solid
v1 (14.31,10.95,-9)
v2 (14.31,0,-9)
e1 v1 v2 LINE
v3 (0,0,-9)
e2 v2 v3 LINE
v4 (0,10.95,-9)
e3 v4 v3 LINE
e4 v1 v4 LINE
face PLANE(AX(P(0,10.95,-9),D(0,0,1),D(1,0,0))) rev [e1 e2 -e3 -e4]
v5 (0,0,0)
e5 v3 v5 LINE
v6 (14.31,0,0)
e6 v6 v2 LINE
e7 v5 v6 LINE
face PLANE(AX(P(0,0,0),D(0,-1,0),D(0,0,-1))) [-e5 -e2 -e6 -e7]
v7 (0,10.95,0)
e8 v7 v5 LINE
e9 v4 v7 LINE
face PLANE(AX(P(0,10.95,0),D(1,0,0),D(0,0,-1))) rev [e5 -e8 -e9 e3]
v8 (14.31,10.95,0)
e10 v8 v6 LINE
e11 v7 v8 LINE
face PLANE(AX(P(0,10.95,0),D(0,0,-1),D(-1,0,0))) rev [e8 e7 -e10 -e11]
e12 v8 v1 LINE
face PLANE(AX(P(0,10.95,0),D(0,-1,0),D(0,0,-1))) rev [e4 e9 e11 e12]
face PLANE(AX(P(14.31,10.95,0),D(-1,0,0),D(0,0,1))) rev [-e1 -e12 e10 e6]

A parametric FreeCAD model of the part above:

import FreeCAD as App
import Part
import Sketcher
from FreeCAD import Vector
Q = App.Units.Quantity

doc = App.newDocument("Part")
body = doc.addObject("PartDesign::Body", "Body")

# Sketch on XZ plane
sketch1 = doc.addObject("Sketcher::SketchObject", "Sketch")
body.addObject(sketch1)
sketch1.AttachmentSupport = (doc.XZ_Plane, [""])
sketch1.MapMode = "FlatFace"
sketch1.addGeometry([
    Part.LineSegment(Vector(0, -9, 0), Vector(0, 0, 0)),
    Part.LineSegment(Vector(0, 0, 0), Vector(14, 0, 0)),
    Part.LineSegment(Vector(14, 0, 0), Vector(14, -9, 0)),
    Part.LineSegment(Vector(14, -9, 0), Vector(0, -9, 0)),
], False)
sketch1.addConstraint([
    Sketcher.Constraint("Coincident", 0, 2, 1, 1),
    Sketcher.Constraint("Coincident", 1, 2, 2, 1),
    Sketcher.Constraint("Coincident", 2, 2, 3, 1),
    Sketcher.Constraint("Coincident", 3, 2, 0, 1),
    Sketcher.Constraint("Vertical", 0),
    Sketcher.Constraint("Horizontal", 1),
    Sketcher.Constraint("Vertical", 2),
    Sketcher.Constraint("Horizontal", 3),
    Sketcher.Constraint("Coincident", 0, 2, -1, 1),
    Sketcher.Constraint("DistanceY", 0, 1, 0, 2, Q("9 mm")),
    Sketcher.Constraint("DistanceX", 1, 1, 1, 2, Q("14.31 mm")),
])
pad1 = doc.addObject("PartDesign::Pad", "Pad")
body.addObject(pad1)
pad1.Profile = sketch1
pad1.Length = 10.95
pad1.Reversed = True

doc.recompute()
